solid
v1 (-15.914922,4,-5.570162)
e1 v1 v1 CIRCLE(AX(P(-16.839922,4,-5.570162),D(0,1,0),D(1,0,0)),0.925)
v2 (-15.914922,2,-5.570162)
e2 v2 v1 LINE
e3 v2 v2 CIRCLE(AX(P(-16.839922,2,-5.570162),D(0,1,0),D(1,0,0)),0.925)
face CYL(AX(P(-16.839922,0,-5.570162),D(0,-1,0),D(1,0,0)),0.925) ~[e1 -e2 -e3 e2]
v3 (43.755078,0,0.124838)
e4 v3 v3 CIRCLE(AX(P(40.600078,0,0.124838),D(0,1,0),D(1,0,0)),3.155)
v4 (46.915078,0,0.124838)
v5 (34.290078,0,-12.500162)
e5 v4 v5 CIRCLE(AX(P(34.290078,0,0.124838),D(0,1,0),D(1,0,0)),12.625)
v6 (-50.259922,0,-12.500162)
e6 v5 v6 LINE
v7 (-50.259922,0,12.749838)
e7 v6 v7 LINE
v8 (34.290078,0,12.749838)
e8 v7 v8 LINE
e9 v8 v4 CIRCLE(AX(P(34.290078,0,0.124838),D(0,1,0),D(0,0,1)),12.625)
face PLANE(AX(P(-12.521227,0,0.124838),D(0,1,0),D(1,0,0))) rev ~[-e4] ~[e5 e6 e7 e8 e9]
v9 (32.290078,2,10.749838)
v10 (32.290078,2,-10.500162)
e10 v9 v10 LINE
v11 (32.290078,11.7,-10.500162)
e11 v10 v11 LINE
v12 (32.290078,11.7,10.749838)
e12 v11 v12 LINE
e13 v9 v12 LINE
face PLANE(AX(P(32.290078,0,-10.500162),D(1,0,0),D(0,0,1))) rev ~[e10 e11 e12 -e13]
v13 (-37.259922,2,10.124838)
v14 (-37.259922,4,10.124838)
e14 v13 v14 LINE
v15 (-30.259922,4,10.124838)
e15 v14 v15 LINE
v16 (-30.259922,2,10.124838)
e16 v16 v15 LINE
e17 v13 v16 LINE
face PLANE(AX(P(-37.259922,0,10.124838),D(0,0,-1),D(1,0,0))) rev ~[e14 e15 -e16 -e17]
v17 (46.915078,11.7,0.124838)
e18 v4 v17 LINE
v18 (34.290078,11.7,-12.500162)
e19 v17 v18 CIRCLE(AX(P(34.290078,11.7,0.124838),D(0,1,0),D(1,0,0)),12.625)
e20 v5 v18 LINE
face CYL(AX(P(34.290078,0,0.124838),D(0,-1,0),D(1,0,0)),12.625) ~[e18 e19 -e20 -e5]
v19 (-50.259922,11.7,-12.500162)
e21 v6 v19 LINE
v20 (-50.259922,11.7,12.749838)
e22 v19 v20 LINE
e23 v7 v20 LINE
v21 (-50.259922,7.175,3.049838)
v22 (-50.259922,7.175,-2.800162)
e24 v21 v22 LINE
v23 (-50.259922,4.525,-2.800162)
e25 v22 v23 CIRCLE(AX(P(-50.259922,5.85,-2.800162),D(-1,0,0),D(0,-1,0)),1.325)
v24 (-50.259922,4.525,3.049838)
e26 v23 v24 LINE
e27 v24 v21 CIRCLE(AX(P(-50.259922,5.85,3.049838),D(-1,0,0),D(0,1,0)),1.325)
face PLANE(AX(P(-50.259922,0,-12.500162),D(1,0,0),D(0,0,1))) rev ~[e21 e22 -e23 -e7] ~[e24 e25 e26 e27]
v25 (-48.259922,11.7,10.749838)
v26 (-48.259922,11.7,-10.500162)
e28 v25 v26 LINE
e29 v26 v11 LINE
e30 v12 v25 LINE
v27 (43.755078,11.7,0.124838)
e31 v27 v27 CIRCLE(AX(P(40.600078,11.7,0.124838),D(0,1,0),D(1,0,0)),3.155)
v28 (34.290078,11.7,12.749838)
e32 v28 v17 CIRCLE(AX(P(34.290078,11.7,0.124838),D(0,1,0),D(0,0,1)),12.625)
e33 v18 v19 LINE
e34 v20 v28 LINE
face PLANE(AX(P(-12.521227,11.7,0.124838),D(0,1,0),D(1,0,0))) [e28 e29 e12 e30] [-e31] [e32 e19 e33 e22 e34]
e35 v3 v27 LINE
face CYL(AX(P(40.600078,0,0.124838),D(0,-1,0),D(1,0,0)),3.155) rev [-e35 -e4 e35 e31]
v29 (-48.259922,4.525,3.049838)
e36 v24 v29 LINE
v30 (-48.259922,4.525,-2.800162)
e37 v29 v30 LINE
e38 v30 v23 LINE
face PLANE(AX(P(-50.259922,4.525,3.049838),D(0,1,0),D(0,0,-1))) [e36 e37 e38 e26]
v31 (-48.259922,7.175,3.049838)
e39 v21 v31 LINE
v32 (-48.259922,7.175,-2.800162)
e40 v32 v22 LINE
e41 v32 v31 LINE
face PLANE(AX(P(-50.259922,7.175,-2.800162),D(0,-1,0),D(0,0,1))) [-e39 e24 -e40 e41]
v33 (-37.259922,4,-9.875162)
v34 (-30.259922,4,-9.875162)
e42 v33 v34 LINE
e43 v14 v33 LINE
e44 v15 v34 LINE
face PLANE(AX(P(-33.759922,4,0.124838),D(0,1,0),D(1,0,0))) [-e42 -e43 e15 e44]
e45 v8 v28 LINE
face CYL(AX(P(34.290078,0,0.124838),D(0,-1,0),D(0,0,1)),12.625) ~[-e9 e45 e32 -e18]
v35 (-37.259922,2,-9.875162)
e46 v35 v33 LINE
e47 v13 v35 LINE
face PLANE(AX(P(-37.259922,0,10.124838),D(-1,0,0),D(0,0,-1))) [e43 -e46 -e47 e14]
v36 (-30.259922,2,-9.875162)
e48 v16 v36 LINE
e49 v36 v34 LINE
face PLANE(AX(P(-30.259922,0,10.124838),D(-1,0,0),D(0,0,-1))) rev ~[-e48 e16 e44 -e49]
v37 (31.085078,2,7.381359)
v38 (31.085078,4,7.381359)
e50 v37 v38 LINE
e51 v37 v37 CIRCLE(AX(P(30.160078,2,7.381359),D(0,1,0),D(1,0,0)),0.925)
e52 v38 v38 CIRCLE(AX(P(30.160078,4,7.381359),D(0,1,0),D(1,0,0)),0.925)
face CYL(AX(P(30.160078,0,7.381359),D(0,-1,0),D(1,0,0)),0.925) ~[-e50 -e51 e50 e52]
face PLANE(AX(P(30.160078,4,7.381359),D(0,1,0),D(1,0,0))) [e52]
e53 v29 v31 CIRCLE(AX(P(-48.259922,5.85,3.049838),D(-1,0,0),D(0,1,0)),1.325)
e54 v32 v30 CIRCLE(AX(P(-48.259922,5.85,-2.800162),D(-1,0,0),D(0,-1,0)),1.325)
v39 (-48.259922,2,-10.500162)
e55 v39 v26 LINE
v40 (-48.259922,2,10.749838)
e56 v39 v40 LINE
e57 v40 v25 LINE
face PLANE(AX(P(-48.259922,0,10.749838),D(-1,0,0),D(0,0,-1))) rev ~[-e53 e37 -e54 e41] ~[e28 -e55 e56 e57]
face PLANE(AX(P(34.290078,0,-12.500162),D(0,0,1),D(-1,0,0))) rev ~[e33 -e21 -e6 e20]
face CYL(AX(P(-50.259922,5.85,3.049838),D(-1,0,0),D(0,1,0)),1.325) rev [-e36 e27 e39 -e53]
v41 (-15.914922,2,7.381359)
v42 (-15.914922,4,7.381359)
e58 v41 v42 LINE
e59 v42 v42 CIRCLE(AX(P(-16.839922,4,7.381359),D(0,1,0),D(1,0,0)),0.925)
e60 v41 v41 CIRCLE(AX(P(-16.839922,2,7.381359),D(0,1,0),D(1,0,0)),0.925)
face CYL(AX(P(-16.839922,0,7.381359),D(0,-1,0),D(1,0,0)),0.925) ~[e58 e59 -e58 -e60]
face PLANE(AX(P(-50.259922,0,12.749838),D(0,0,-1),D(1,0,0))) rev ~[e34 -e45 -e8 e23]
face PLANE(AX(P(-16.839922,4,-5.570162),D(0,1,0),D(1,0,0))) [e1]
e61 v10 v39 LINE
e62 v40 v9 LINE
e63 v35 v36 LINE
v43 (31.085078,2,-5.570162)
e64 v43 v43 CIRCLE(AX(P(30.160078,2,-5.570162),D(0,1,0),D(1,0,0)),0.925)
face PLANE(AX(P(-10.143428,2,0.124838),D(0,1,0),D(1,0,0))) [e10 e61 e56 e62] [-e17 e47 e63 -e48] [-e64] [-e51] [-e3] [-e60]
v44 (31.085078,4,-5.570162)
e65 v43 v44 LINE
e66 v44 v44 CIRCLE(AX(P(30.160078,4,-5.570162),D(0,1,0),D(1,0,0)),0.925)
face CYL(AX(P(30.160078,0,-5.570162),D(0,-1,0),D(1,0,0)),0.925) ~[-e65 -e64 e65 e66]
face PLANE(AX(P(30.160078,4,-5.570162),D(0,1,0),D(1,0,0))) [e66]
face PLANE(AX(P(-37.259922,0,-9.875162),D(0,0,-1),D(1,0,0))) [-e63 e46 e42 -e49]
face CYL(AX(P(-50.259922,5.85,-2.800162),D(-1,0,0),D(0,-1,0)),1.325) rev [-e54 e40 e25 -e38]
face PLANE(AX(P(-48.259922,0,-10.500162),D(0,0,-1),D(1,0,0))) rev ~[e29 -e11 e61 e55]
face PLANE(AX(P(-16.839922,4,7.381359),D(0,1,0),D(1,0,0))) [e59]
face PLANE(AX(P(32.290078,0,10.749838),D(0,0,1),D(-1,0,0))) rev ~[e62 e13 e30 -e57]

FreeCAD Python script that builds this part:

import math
import FreeCAD as App
import Part
import Sketcher
from FreeCAD import Vector
Q = App.Units.Quantity

doc = App.newDocument("Part")
body = doc.addObject("PartDesign::Body", "Body")

sketch1 = body.newObject("Sketcher::SketchObject", "Sketch")
sketch1.AttachmentSupport = (doc.getObject("XZ_Plane"), [""])
sketch1.MapMode = "FlatFace"
sketch1.addGeometry([
    Part.LineSegment(Vector(-37, -10, 0), Vector(-37, 10, 0)),
    Part.LineSegment(Vector(-37, 10, 0), Vector(-30, 10, 0)),
    Part.LineSegment(Vector(-30, 10, 0), Vector(-30, -10, 0)),
    Part.LineSegment(Vector(-30, -10, 0), Vector(-37, -10, 0)),
], False)
sketch1.addConstraint([
    Sketcher.Constraint("Coincident", 0, 2, 1, 1),
    Sketcher.Constraint("Coincident", 1, 2, 2, 1),
    Sketcher.Constraint("Coincident", 2, 2, 3, 1),
    Sketcher.Constraint("Coincident", 3, 2, 0, 1),
    Sketcher.Constraint("Vertical", 0),
    Sketcher.Constraint("Horizontal", 1),
    Sketcher.Constraint("Vertical", 2),
    Sketcher.Constraint("Horizontal", 3),
    Sketcher.Constraint("DistanceX", 1, 1, 1, 2, Q("7 mm")),
    Sketcher.Constraint("DistanceY", 0, 1, 0, 2, Q("20 mm")),
    Sketcher.Constraint("DistanceY", -1, 1, 0, 2, Q("10.124838 mm")),
    Sketcher.Constraint("DistanceX", 0, 2, -1, 1, Q("37.259922 mm")),
])
pad1 = body.newObject("PartDesign::Pad", "Pad")
pad1.Profile = sketch1
pad1.Length = 4
pad1.Reversed = True

sketch2 = body.newObject("Sketcher::SketchObject", "Sketch001")
sketch2.AttachmentSupport = (doc.getObject("XZ_Plane"), [""])
sketch2.MapMode = "FlatFace"
sketch2.addGeometry([
    Part.LineSegment(Vector(-48.3, 10.7, 0), Vector(32.3, 10.7, 0)),
    Part.LineSegment(Vector(32.3, 10.7, 0), Vector(32.3, -10.5, 0)),
    Part.LineSegment(Vector(32.3, -10.5, 0), Vector(-48.3, -10.5, 0)),
    Part.LineSegment(Vector(-48.3, -10.5, 0), Vector(-48.3, 10.7, 0)),
    Part.Circle(Vector(-16.8, 7.4, 0), Vector(0, 0, 1), 0.9),
    Part.Circle(Vector(30.2, 7.4, 0), Vector(0, 0, 1), 0.9),
    Part.LineSegment(Vector(-30.3, 10.1, 0), Vector(-37.3, 10.1, 0)),
    Part.LineSegment(Vector(-37.3, 10.1, 0), Vector(-37.3, -9.9, 0)),
    Part.LineSegment(Vector(-37.3, -9.9, 0), Vector(-30.3, -9.9, 0)),
    Part.LineSegment(Vector(-30.3, -9.9, 0), Vector(-30.3, 10.1, 0)),
    Part.Circle(Vector(-16.8, -5.6, 0), Vector(0, 0, 1), 0.9),
    Part.Circle(Vector(30.2, -5.6, 0), Vector(0, 0, 1), 0.9),
], False)
sketch2.addConstraint([
    Sketcher.Constraint("Coincident", 0, 2, 1, 1),
    Sketcher.Constraint("Coincident", 1, 2, 2, 1),
    Sketcher.Constraint("Coincident", 2, 2, 3, 1),
    Sketcher.Constraint("Coincident", 3, 2, 0, 1),
    Sketcher.Constraint("Coincident", 6, 2, 7, 1),
    Sketcher.Constraint("Coincident", 7, 2, 8, 1),
    Sketcher.Constraint("Coincident", 8, 2, 9, 1),
    Sketcher.Constraint("Coincident", 9, 2, 6, 1),
    Sketcher.Constraint("Horizontal", 0),
    Sketcher.Constraint("Vertical", 1),
    Sketcher.Constraint("Horizontal", 2),
    Sketcher.Constraint("Vertical", 3),
    Sketcher.Constraint("Horizontal", 6),
    Sketcher.Constraint("Vertical", 7),
    Sketcher.Constraint("Horizontal", 8),
    Sketcher.Constraint("Vertical", 9),
    Sketcher.Constraint("Equal", 4, 5),
    Sketcher.Constraint("Equal", 5, 10),
    Sketcher.Constraint("Equal", 10, 11),
    Sketcher.Constraint("Horizontal", 4, 3, 5, 3),
    Sketcher.Constraint("Horizontal", 10, 3, 11, 3),
    Sketcher.Constraint("Vertical", 4, 3, 10, 3),
    Sketcher.Constraint("Vertical", 5, 3, 11, 3),
    Sketcher.Constraint("Diameter", 4, Q("1.85 mm")),
    Sketcher.Constraint("DistanceX", 6, 2, 6, 1, Q("7 mm")),
    Sketcher.Constraint("DistanceY", 7, 2, 7, 1, Q("20 mm")),
    Sketcher.Constraint("DistanceX", 4, 3, 5, 3, Q("47 mm")),
    Sketcher.Constraint("DistanceX", 3, 2, 6, 2, Q("11 mm")),
    Sketcher.Constraint("DistanceX", 0, 1, 0, 2, Q("80.55 mm")),
    Sketcher.Constraint("DistanceY", 1, 2, 1, 1, Q("21.25 mm")),
    Sketcher.Constraint("DistanceX", 5, 3, 0, 2, Q("2.13 mm")),
    Sketcher.Constraint("DistanceY", 11, 3, 0, 2, Q("16.32 mm")),
    Sketcher.Constraint("DistanceY", 6, 2, 3, 2, Q("0.625 mm")),
    Sketcher.Constraint("DistanceY", -1, 1, 4, 3, Q("7.381359 mm")),
    Sketcher.Constraint("DistanceY", 10, 3, -1, 1, Q("5.570162 mm")),
    Sketcher.Constraint("DistanceX", 4, 3, -1, 1, Q("16.839922 mm")),
])
pad2 = body.newObject("PartDesign::Pad", "Pad001")
pad2.Profile = sketch2
pad2.Length = 2
pad2.Reversed = True

sketch3 = body.newObject("Sketcher::SketchObject", "Sketch002")
sketch3.AttachmentSupport = (doc.getObject("XZ_Plane"), [""])
sketch3.MapMode = "FlatFace"
sketch3.addGeometry([
    Part.Circle(Vector(-16.8, -5.6, 0), Vector(0, 0, 1), 0.9),
    Part.Circle(Vector(-16.8, 7.4, 0), Vector(0, 0, 1), 0.9),
    Part.Circle(Vector(30.2, 7.4, 0), Vector(0, 0, 1), 0.9),
    Part.Circle(Vector(30.2, -5.6, 0), Vector(0, 0, 1), 0.9),
], False)
sketch3.addConstraint([
    Sketcher.Constraint("Equal", 0, 1),
    Sketcher.Constraint("Equal", 1, 2),
    Sketcher.Constraint("Equal", 2, 3),
    Sketcher.Constraint("Horizontal", 1, 3, 2, 3),
    Sketcher.Constraint("Horizontal", 0, 3, 3, 3),
    Sketcher.Constraint("Vertical", 0, 3, 1, 3),
    Sketcher.Constraint("Vertical", 2, 3, 3, 3),
    Sketcher.Constraint("Diameter", 0, Q("1.85 mm")),
    Sketcher.Constraint("DistanceX", 1, 3, 2, 3, Q("47 mm")),
    Sketcher.Constraint("DistanceY", 0, 3, -1, 1, Q("5.570162 mm")),
    Sketcher.Constraint("DistanceY", -1, 1, 1, 3, Q("7.381359 mm")),
    Sketcher.Constraint("DistanceX", 0, 3, -1, 1, Q("16.839922 mm")),
])
pad3 = body.newObject("PartDesign::Pad", "Pad002")
pad3.Profile = sketch3
pad3.Length = 4
pad3.Reversed = True

sketch4 = body.newObject("Sketcher::SketchObject", "Sketch003")
sketch4.AttachmentSupport = (doc.getObject("XZ_Plane"), [""])
sketch4.MapMode = "FlatFace"
sketch4.addGeometry([
    Part.LineSegment(Vector(34.3, -12.5, 0), Vector(-50.3, -12.5, 0)),
    Part.LineSegment(Vector(-50.3, -12.5, 0), Vector(-50.3, 12.7, 0)),
    Part.LineSegment(Vector(-50.3, 12.7, 0), Vector(34.3, 12.7, 0)),
    Part.ArcOfCircle(Part.Circle(Vector(34.3, 0.1, 0), Vector(0, 0, 1), 12.6), math.radians(0), math.radians(90)),
    Part.ArcOfCircle(Part.Circle(Vector(34.3, 0.1, 0), Vector(0, 0, 1), 12.6), math.radians(-90), math.radians(0)),
    Part.LineSegment(Vector(-48.3, 10.7, 0), Vector(-48.3, -10.5, 0)),
    Part.LineSegment(Vector(-48.3, -10.5, 0), Vector(32.3, -10.5, 0)),
    Part.LineSegment(Vector(32.3, -10.5, 0), Vector(32.3, 10.7, 0)),
    Part.LineSegment(Vector(32.3, 10.7, 0), Vector(-48.3, 10.7, 0)),
    Part.Circle(Vector(40.6, 0.1, 0), Vector(0, 0, 1), 3.2),
], False)
sketch4.addConstraint([
    Sketcher.Constraint("Coincident", 0, 2, 1, 1),
    Sketcher.Constraint("Coincident", 1, 2, 2, 1),
    Sketcher.Constraint("Tangent", 2, 2, 3, 2),
    Sketcher.Constraint("Tangent", 3, 1, 4, 2),
    Sketcher.Constraint("Tangent", 4, 1, 0, 1),
    Sketcher.Constraint("Coincident", 5, 2, 6, 1),
    Sketcher.Constraint("Coincident", 6, 2, 7, 1),
    Sketcher.Constraint("Coincident", 7, 2, 8, 1),
    Sketcher.Constraint("Coincident", 8, 2, 5, 1),
    Sketcher.Constraint("Horizontal", 0),
    Sketcher.Constraint("Vertical", 1),
    Sketcher.Constraint("Horizontal", 2),
    Sketcher.Constraint("Vertical", 5),
    Sketcher.Constraint("Horizontal", 6),
    Sketcher.Constraint("Vertical", 7),
    Sketcher.Constraint("Horizontal", 8),
    Sketcher.Constraint("Equal", 3, 4),
    Sketcher.Constraint("Horizontal", 4, 3, 9, 3),
    Sketcher.Constraint("Horizontal", 9, 3, 3, 1),
    Sketcher.Constraint("Diameter", 9, Q("6.31 mm")),
    Sketcher.Constraint("Radius", 3, Q("12.625 mm")),
    Sketcher.Constraint("DistanceX", 0, 2, 5, 2, Q("2 mm")),
    Sketcher.Constraint("DistanceY", 0, 2, 5, 2, Q("2 mm")),
    Sketcher.Constraint("DistanceX", 6, 2, 4, 1, Q("2 mm")),
    Sketcher.Constraint("DistanceY", 7, 2, 2, 2, Q("2 mm")),
    Sketcher.Constraint("DistanceX", 0, 2, 0, 1, Q("84.55 mm")),
    Sketcher.Constraint("DistanceX", 3, 3, 9, 3, Q("6.31 mm")),
    Sketcher.Constraint("DistanceY", -1, 1, 3, 3, Q("0.124838 mm")),
    Sketcher.Constraint("DistanceX", -1, 1, 3, 3, Q("34.290078 mm")),
])
pad4 = body.newObject("PartDesign::Pad", "Pad003")
pad4.Profile = sketch4
pad4.Length = 11.7
pad4.Reversed = True

sketch5 = body.newObject("Sketcher::SketchObject", "Sketch004")
sketch5.AttachmentSupport = (doc.getObject("YZ_Plane"), [""])
sketch5.MapMode = "FlatFace"
sketch5.AttachmentOffset = App.Placement(Vector(0, 0, -50.259922), App.Rotation())
sketch5.addGeometry([
    Part.LineSegment(Vector(7.2, 3, 0), Vector(7.2, -2.8, 0)),
    Part.ArcOfCircle(Part.Circle(Vector(5.8, -2.8, 0), Vector(0, 0, 1), 1.3), math.radians(180), math.radians(360)),
    Part.LineSegment(Vector(4.5, -2.8, 0), Vector(4.5, 3, 0)),
    Part.ArcOfCircle(Part.Circle(Vector(5.8, 3, 0), Vector(0, 0, 1), 1.3), math.radians(0), math.radians(180)),
], False)
sketch5.addConstraint([
    Sketcher.Constraint("Tangent", 0, 2, 1, 2),
    Sketcher.Constraint("Tangent", 1, 1, 2, 1),
    Sketcher.Constraint("Tangent", 2, 2, 3, 2),
    Sketcher.Constraint("Tangent", 3, 1, 0, 1),
    Sketcher.Constraint("Vertical", 0),
    Sketcher.Constraint("Vertical", 2),
    Sketcher.Constraint("Radius", 1, Q("1.325 mm")),
    Sketcher.Constraint("DistanceY", 0, 2, 0, 1, Q("5.85 mm")),
    Sketcher.Constraint("DistanceX", -1, 1, 1, 3, Q("5.85 mm")),
    Sketcher.Constraint("DistanceY", 1, 3, -1, 1, Q("2.800162 mm")),
])
pocket1 = body.newObject("PartDesign::Pocket", "Pocket")
pocket1.Profile = sketch5
pocket1.Length = 9.7
pocket1.Midplane = True

doc.recompute()
